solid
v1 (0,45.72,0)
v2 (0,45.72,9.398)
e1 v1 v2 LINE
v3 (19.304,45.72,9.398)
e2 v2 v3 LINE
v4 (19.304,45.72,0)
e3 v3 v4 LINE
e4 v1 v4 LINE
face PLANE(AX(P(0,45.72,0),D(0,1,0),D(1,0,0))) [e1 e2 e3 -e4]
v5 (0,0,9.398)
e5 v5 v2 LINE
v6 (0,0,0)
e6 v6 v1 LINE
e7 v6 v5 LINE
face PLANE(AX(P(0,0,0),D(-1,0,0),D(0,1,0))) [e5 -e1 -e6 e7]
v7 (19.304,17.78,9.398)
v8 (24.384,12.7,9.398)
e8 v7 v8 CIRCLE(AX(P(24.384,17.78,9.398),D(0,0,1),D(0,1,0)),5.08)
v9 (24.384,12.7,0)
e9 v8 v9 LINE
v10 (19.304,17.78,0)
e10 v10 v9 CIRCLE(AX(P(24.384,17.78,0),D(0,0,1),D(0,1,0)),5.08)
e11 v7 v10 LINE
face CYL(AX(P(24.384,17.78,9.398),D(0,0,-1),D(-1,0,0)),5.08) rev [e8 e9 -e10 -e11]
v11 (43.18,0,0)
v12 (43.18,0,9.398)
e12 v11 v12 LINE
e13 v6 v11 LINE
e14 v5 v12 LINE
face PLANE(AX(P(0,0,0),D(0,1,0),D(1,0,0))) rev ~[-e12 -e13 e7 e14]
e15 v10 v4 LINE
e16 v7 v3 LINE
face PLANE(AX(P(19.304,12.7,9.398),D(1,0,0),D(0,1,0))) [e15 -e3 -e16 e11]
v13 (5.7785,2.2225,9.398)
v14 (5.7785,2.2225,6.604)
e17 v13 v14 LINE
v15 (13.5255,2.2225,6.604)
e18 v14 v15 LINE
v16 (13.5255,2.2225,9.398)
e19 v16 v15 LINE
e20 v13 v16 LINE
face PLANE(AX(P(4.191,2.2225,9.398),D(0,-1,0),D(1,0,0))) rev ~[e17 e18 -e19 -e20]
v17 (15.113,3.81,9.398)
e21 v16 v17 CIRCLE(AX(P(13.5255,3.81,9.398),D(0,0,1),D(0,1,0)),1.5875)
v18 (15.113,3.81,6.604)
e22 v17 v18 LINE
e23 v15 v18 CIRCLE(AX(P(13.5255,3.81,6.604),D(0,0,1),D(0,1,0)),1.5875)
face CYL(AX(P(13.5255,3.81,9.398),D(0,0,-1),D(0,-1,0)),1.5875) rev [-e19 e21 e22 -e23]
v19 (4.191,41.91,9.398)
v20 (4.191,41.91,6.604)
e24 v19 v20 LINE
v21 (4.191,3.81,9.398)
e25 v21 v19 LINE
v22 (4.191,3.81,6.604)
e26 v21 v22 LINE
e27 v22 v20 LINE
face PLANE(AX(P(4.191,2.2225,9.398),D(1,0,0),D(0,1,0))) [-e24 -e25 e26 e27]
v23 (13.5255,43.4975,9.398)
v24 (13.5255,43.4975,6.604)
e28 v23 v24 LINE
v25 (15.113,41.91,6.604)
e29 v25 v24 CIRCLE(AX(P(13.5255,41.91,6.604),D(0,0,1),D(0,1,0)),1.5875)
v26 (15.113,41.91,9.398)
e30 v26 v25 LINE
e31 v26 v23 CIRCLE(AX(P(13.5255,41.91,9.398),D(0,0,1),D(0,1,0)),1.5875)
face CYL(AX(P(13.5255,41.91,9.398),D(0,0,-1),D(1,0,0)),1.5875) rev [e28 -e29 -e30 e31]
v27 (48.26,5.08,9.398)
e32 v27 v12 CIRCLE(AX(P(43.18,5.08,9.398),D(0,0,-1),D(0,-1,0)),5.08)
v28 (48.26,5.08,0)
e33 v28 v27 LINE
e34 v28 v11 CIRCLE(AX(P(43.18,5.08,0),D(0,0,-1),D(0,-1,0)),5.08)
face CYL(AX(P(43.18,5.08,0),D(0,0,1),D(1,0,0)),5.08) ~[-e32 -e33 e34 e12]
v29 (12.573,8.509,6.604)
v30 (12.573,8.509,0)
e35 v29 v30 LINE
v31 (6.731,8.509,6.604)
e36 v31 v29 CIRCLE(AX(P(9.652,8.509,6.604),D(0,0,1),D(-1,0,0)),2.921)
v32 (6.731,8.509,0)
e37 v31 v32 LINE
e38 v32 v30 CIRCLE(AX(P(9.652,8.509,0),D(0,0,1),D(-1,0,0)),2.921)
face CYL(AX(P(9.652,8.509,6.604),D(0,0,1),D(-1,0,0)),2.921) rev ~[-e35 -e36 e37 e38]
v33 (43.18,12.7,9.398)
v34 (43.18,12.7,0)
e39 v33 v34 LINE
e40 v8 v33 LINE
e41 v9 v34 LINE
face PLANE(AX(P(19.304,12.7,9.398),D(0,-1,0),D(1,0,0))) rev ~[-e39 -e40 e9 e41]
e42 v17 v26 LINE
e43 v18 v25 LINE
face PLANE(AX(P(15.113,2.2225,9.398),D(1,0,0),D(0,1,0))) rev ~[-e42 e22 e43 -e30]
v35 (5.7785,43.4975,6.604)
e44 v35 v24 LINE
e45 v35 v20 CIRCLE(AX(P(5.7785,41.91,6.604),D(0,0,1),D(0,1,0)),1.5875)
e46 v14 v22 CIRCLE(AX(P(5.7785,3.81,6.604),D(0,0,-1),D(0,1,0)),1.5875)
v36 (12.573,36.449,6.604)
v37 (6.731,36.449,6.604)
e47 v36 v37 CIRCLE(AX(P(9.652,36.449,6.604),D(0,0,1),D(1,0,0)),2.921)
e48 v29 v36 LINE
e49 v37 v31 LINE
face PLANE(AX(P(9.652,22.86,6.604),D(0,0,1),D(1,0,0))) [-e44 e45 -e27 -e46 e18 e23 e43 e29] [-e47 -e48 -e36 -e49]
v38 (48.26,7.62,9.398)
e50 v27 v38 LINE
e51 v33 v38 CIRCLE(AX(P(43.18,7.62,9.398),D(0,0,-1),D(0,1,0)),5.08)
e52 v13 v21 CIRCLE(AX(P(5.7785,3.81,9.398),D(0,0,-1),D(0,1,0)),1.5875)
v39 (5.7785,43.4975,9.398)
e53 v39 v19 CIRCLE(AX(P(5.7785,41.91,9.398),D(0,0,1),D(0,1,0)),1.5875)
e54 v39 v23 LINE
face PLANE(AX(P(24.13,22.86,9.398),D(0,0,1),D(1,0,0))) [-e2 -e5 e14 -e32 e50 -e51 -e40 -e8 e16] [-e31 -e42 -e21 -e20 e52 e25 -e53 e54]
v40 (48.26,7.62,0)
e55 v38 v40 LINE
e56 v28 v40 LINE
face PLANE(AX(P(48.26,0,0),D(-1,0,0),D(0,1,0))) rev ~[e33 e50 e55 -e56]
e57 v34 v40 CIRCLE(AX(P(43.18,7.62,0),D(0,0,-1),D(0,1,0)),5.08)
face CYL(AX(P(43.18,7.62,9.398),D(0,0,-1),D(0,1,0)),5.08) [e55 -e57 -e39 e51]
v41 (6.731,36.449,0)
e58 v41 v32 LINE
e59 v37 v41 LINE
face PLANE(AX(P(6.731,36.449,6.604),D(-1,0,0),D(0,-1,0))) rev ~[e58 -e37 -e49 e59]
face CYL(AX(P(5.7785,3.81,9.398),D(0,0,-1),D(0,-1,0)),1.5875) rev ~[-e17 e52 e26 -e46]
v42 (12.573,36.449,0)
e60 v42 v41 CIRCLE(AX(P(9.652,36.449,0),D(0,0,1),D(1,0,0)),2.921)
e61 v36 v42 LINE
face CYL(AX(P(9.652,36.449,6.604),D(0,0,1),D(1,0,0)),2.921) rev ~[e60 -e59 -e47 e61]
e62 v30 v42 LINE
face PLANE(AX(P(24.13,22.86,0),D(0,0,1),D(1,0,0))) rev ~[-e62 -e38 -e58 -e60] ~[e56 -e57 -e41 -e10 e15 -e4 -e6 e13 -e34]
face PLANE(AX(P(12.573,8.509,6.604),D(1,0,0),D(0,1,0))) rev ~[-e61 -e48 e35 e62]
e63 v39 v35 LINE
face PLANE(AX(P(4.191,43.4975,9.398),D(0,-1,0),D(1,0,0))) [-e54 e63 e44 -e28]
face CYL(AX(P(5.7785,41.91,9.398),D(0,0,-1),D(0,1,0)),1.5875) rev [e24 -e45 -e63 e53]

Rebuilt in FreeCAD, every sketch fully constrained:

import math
import FreeCAD as App
import Part
import Sketcher
Q = App.Units.Quantity


def edges_at(feature, points):
    """Names of the edges that pass closest to the given points."""
    edges = feature.Shape.Edges
    near = lambda p: min(range(len(edges)), key=lambda i: edges[i].distToShape(Part.Vertex(*p))[0])
    return sorted({f"Edge{near(p) + 1}" for p in points})


def add_polygon(sketch, points):
    """Adds a closed chain of lines whose ends are joined by coincident constraints."""
    first, n = sketch.GeometryCount, len(points)
    for a, b in zip(points, points[1:] + points[:1]):
        sketch.addGeometry(Part.LineSegment(App.Vector(*a, 0), App.Vector(*b, 0)), False)
    for i in range(n):
        sketch.addConstraint(Sketcher.Constraint("Coincident", first + i, 2, first + (i + 1) % n, 1))

doc = App.newDocument("Part")
params = doc.addObject("Spreadsheet::Sheet", "Params")
for row, (alias, value) in enumerate([
    ("sketch1_width", "1.9 in"),
    ("sketch1_height", "1.8 in"),
    ("pad1_length", "0.37 in"),
    ("sketch2_height", "1.3 in"),
    ("sketch2_width", "1.14 in"),
    ("pocket1_length", "1 in"),
    ("sketch3_width", "0.43 in"),
    ("sketch3_height", "1.625 in"),
    ("pocket2_length", "0.11 in"),
    ("sketch4_height", "1.1 in"),
    ("sketch4_radius", "0.115 in"),
    ("fillet_radius", "0.2 in"),
    ("fillet2_radius", "0.0625 in"),
    ("fillet3_radius", "0.2 in"),
], start=1):
    params.set(f"A{row}", alias)
    params.set(f"B{row}", "=" + value)
    params.setAlias(f"B{row}", alias)

body = doc.addObject("PartDesign::Body", "Body")

# Sketch on XY plane
sketch1 = doc.addObject("Sketcher::SketchObject", "Sketch")
body.addObject(sketch1)
sketch1.AttachmentSupport = (doc.XY_Plane, [""])
sketch1.MapMode = "FlatFace"
add_polygon(sketch1, [(0, 46), (0, 0), (48, 0), (48, 46)])  # lines 0-3
sketch1.addConstraint([
    Sketcher.Constraint("Vertical", 0),
    Sketcher.Constraint("Horizontal", 1),
    Sketcher.Constraint("Vertical", 2),
    Sketcher.Constraint("Horizontal", 3),
    Sketcher.Constraint("Coincident", 0, 2, -1, 1),
    Sketcher.Constraint("DistanceX", 1, 1, 1, 2, Q("1.9 in")),
    Sketcher.Constraint("DistanceY", 0, 2, 0, 1, Q("1.8 in")),
])
sketch1.setExpression("Constraints[9]", "Params.sketch1_width")
sketch1.setExpression("Constraints[10]", "Params.sketch1_height")
pad1 = doc.addObject("PartDesign::Pad", "Pad")
body.addObject(pad1)
pad1.Profile = sketch1
pad1.setExpression("Length", "Params.pad1_length")

# Sketch on XY plane
sketch2 = doc.addObject("Sketcher::SketchObject", "Sketch001")
body.addObject(sketch2)
sketch2.AttachmentSupport = (doc.XY_Plane, [""])
sketch2.MapMode = "FlatFace"
sketch2.AttachmentOffset = App.Placement(App.Vector(0, 0, 0.37 * 25.4), App.Rotation())
add_polygon(sketch2, [(19, 46), (19, 13), (48, 13), (48, 46)])  # lines 0-3
sketch2.addConstraint([
    Sketcher.Constraint("Vertical", 0),
    Sketcher.Constraint("Horizontal", 1),
    Sketcher.Constraint("Vertical", 2),
    Sketcher.Constraint("Horizontal", 3),
    Sketcher.Constraint("DistanceY", 0, 2, 0, 1, Q("1.3 in")),
    Sketcher.Constraint("DistanceX", 1, 1, 1, 2, Q("1.14 in")),
    Sketcher.Constraint("DistanceY", -1, 1, 0, 2, Q("0.5 in")),
    Sketcher.Constraint("DistanceX", -1, 1, 1, 2, Q("1.9 in")),
])
sketch2.setExpression("Constraints[8]", "Params.sketch2_height")
sketch2.setExpression("Constraints[9]", "Params.sketch2_width")
pocket1 = doc.addObject("PartDesign::Pocket", "Pocket")
body.addObject(pocket1)
pocket1.Profile = sketch2
pocket1.setExpression("Length", "Params.pocket1_length")

# Sketch on XY plane
sketch3 = doc.addObject("Sketcher::SketchObject", "Sketch002")
body.addObject(sketch3)
sketch3.AttachmentSupport = (doc.XY_Plane, [""])
sketch3.MapMode = "FlatFace"
sketch3.AttachmentOffset = App.Placement(App.Vector(0, 0, 0.37 * 25.4), App.Rotation())
add_polygon(sketch3, [(4, 43), (4, 2), (15, 2), (15, 43)])  # lines 0-3
sketch3.addConstraint([
    Sketcher.Constraint("Vertical", 0),
    Sketcher.Constraint("Horizontal", 1),
    Sketcher.Constraint("Vertical", 2),
    Sketcher.Constraint("Horizontal", 3),
    Sketcher.Constraint("DistanceX", 1, 1, 1, 2, Q("0.43 in")),
    Sketcher.Constraint("DistanceY", 0, 2, 0, 1, Q("1.625 in")),
    Sketcher.Constraint("DistanceX", -1, 1, 0, 2, Q("0.165 in")),
    Sketcher.Constraint("DistanceY", -1, 1, 0, 2, Q("0.0875 in")),
])
sketch3.setExpression("Constraints[8]", "Params.sketch3_width")
sketch3.setExpression("Constraints[9]", "Params.sketch3_height")
pocket2 = doc.addObject("PartDesign::Pocket", "Pocket001")
body.addObject(pocket2)
pocket2.Profile = sketch3
pocket2.setExpression("Length", "Params.pocket2_length")

# Sketch on XY plane
sketch4 = doc.addObject("Sketcher::SketchObject", "Sketch003")
body.addObject(sketch4)
sketch4.AttachmentSupport = (doc.XY_Plane, [""])
sketch4.MapMode = "FlatFace"
sketch4.AttachmentOffset = App.Placement(App.Vector(0, 0, 0.26 * 25.4), App.Rotation())
sketch4.addGeometry([
    Part.ArcOfCircle(Part.Circle(App.Vector(9.7, 36.4, 0), App.Vector(0, 0, 1), 2.9), math.radians(0), math.radians(180)),
    Part.LineSegment(App.Vector(6.7, 36.4, 0), App.Vector(6.7, 8.5, 0)),
    Part.ArcOfCircle(Part.Circle(App.Vector(9.7, 8.5, 0), App.Vector(0, 0, 1), 2.9), math.radians(180), math.radians(360)),
    Part.LineSegment(App.Vector(12.6, 8.5, 0), App.Vector(12.6, 36.4, 0)),
], False)
sketch4.addConstraint([
    Sketcher.Constraint("Tangent", 0, 2, 1, 1),
    Sketcher.Constraint("Tangent", 1, 2, 2, 1),
    Sketcher.Constraint("Tangent", 2, 2, 3, 1),
    Sketcher.Constraint("Tangent", 3, 2, 0, 1),
    Sketcher.Constraint("Vertical", 1),
    Sketcher.Constraint("Vertical", 3),
    Sketcher.Constraint("DistanceY", 1, 2, 1, 1, Q("1.1 in")),
    Sketcher.Constraint("Radius", 0, Q("0.115 in")),
    Sketcher.Constraint("DistanceX", -1, 1, 0, 3, Q("0.38 in")),
    Sketcher.Constraint("DistanceY", -1, 1, 0, 3, Q("1.435 in")),
])
sketch4.setExpression("Constraints[6]", "Params.sketch4_height")
sketch4.setExpression("Constraints[7]", "Params.sketch4_radius")
pocket3 = doc.addObject("PartDesign::Pocket", "Pocket002")
body.addObject(pocket3)
pocket3.Profile = sketch4
pocket3.Type = "ThroughAll"
doc.recompute()

fillet = doc.addObject("PartDesign::Fillet", "Fillet")
body.addObject(fillet)
fillet.Base = (pocket3, edges_at(pocket3, [(19.304, 12.7, 4.699)]))
fillet.setExpression("Radius", "Params.fillet_radius")
doc.recompute()

fillet2 = doc.addObject("PartDesign::Fillet", "Fillet001")
body.addObject(fillet2)
fillet2.Base = (fillet, edges_at(fillet, [
    (4.191, 43.498, 8.001),
    (4.191, 2.223, 8.001),
    (15.113, 2.223, 8.001),
    (15.113, 43.498, 8.001),
]))
fillet2.setExpression("Radius", "Params.fillet2_radius")
doc.recompute()

fillet3 = doc.addObject("PartDesign::Fillet", "Fillet002")
body.addObject(fillet3)
fillet3.Base = (fillet2, edges_at(fillet2, [(48.26, 0, 4.699), (48.26, 12.7, 4.699)]))
fillet3.setExpression("Radius", "Params.fillet3_radius")

doc.recompute()
